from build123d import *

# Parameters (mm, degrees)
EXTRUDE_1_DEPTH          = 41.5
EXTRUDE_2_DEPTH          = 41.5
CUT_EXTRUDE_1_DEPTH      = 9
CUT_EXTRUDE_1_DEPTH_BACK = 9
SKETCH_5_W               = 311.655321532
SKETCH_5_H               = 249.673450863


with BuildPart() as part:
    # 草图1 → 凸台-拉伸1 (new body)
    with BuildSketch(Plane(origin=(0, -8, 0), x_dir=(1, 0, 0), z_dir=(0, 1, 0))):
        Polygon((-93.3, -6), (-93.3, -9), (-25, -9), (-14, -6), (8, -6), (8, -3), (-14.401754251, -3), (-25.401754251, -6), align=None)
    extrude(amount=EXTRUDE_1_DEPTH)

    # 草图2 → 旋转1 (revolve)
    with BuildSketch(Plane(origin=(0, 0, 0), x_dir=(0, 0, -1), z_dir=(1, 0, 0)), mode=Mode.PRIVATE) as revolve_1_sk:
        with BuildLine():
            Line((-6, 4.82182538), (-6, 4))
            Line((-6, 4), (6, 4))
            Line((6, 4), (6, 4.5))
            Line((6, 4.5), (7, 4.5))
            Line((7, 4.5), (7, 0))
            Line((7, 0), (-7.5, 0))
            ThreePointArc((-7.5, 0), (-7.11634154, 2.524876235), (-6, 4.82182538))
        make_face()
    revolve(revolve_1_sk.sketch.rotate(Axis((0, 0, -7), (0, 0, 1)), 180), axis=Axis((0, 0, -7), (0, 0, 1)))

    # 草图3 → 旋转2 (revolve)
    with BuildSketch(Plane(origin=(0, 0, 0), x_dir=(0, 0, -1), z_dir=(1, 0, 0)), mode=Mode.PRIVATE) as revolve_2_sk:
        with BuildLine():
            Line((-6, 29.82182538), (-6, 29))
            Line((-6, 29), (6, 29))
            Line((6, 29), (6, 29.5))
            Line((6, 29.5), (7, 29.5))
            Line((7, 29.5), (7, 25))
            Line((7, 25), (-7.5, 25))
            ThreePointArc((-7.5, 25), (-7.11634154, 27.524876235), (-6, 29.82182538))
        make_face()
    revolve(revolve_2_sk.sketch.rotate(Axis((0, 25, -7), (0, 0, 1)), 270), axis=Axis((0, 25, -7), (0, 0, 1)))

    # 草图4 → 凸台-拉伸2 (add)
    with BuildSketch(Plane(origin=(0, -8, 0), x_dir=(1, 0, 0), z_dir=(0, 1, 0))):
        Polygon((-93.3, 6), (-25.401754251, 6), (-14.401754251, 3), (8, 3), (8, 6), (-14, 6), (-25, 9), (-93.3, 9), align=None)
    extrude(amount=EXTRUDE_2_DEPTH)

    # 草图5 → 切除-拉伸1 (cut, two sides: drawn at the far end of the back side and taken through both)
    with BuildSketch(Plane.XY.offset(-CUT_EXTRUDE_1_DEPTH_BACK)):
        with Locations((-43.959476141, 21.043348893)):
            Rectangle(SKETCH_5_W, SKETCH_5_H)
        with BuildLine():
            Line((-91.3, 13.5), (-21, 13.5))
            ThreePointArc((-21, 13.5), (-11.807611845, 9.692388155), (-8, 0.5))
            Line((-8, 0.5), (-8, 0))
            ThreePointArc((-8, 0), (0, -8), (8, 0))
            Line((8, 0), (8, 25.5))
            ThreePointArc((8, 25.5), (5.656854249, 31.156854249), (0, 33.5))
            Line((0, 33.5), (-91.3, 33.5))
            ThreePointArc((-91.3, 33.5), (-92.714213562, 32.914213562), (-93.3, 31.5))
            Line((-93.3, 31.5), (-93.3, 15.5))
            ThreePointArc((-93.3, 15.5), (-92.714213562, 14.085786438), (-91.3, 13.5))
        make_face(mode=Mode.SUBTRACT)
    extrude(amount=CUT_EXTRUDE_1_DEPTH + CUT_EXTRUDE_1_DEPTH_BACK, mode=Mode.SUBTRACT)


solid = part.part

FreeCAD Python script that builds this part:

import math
import FreeCAD as App
import Part
import Sketcher
Q = App.Units.Quantity

doc = App.newDocument("Part")
body = doc.addObject("PartDesign::Body", "Body")

# Sketch on XZ plane
sketch1 = body.newObject("Sketcher::SketchObject", "Sketch")
sketch1.AttachmentSupport = (doc.getObject("XZ_Plane"), [""])
sketch1.MapMode = "FlatFace"
sketch1.AttachmentOffset = App.Placement(App.Vector(0, 0, 8), App.Rotation())
sketch1.addGeometry(Part.LineSegment(App.Vector(-93.3, 6, 0), App.Vector(-93.3, 9, 0)), False)
sketch1.addGeometry(Part.LineSegment(App.Vector(-93.3, 9, 0), App.Vector(-25, 9, 0)), False)
sketch1.addGeometry(Part.LineSegment(App.Vector(-25, 9, 0), App.Vector(-14, 6, 0)), False)
sketch1.addGeometry(Part.LineSegment(App.Vector(-14, 6, 0), App.Vector(8, 6, 0)), False)
sketch1.addGeometry(Part.LineSegment(App.Vector(8, 6, 0), App.Vector(8, 3, 0)), False)
sketch1.addGeometry(Part.LineSegment(App.Vector(8, 3, 0), App.Vector(-14.4, 3, 0)), False)
sketch1.addGeometry(Part.LineSegment(App.Vector(-14.4, 3, 0), App.Vector(-25.4, 6, 0)), False)
sketch1.addGeometry(Part.LineSegment(App.Vector(-25.4, 6, 0), App.Vector(-93.3, 6, 0)), False)
sketch1.addConstraint(Sketcher.Constraint("Coincident", 0, 2, 1, 1))
sketch1.addConstraint(Sketcher.Constraint("Coincident", 1, 2, 2, 1))
sketch1.addConstraint(Sketcher.Constraint("Coincident", 2, 2, 3, 1))
sketch1.addConstraint(Sketcher.Constraint("Coincident", 3, 2, 4, 1))
sketch1.addConstraint(Sketcher.Constraint("Coincident", 4, 2, 5, 1))
sketch1.addConstraint(Sketcher.Constraint("Coincident", 5, 2, 6, 1))
sketch1.addConstraint(Sketcher.Constraint("Coincident", 6, 2, 7, 1))
sketch1.addConstraint(Sketcher.Constraint("Coincident", 7, 2, 0, 1))
sketch1.addConstraint(Sketcher.Constraint("Vertical", 0))
sketch1.addConstraint(Sketcher.Constraint("Horizontal", 1))
sketch1.addConstraint(Sketcher.Constraint("Horizontal", 3))
sketch1.addConstraint(Sketcher.Constraint("Vertical", 4))
sketch1.addConstraint(Sketcher.Constraint("Horizontal", 5))
sketch1.addConstraint(Sketcher.Constraint("Horizontal", 7))
sketch1.addConstraint(Sketcher.Constraint("Parallel", 2, 6))
sketch1.addConstraint(Sketcher.Constraint("Horizontal", 3, 2, 6, 2))
sketch1.addConstraint(Sketcher.Constraint("Equal", 0, 4))
sketch1.addConstraint(Sketcher.Constraint("DistanceX", 3, 1, 3, 2, Q("22 mm")))
sketch1.addConstraint(Sketcher.Constraint("DistanceY", 0, 1, 0, 2, Q("3 mm")))
sketch1.addConstraint(Sketcher.Constraint("DistanceX", 1, 1, 1, 2, Q("68.3 mm")))
sketch1.addConstraint(Sketcher.Constraint("DistanceY", -1, 1, 0, 2, Q("9 mm")))
sketch1.addConstraint(Sketcher.Constraint("DistanceX", 1, 2, -1, 1, Q("25 mm")))
sketch1.addConstraint(Sketcher.Constraint("DistanceX", 2, 2, -1, 1, Q("14 mm")))
sketch1.addConstraint(Sketcher.Constraint("DistanceX", 5, 2, 5, 1, Q("22.401754 mm")))
pad1 = body.newObject("PartDesign::Pad", "Pad")
pad1.Profile = sketch1
pad1.Length = 41.5
pad1.Reversed = True

# Sketch on YZ plane
sketch2 = body.newObject("Sketcher::SketchObject", "Sketch001")
sketch2.AttachmentSupport = (doc.getObject("YZ_Plane"), [""])
sketch2.MapMode = "FlatFace"
sketch2.addGeometry(Part.LineSegment(App.Vector(4, 6, 0), App.Vector(4.8, 6, 0)), False)
sketch2.addGeometry(Part.ArcOfCircle(Part.Circle(App.Vector(0, -1, 0), App.Vector(0, 0, 1), 8.5), math.radians(55), math.radians(90)), False)
sketch2.addGeometry(Part.LineSegment(App.Vector(0, 7.5, 0), App.Vector(0, -7, 0)), False)
sketch2.addGeometry(Part.LineSegment(App.Vector(0, -7, 0), App.Vector(4.5, -7, 0)), False)
sketch2.addGeometry(Part.LineSegment(App.Vector(4.5, -7, 0), App.Vector(4.5, -6, 0)), False)
sketch2.addGeometry(Part.LineSegment(App.Vector(4.5, -6, 0), App.Vector(4, -6, 0)), False)
sketch2.addGeometry(Part.LineSegment(App.Vector(4, -6, 0), App.Vector(4, 6, 0)), False)
sketch2.addConstraint(Sketcher.Constraint("Coincident", 0, 2, 1, 1))
sketch2.addConstraint(Sketcher.Constraint("Coincident", 1, 2, 2, 1))
sketch2.addConstraint(Sketcher.Constraint("Coincident", 2, 2, 3, 1))
sketch2.addConstraint(Sketcher.Constraint("Coincident", 3, 2, 4, 1))
sketch2.addConstraint(Sketcher.Constraint("Coincident", 4, 2, 5, 1))
sketch2.addConstraint(Sketcher.Constraint("Coincident", 5, 2, 6, 1))
sketch2.addConstraint(Sketcher.Constraint("Coincident", 6, 2, 0, 1))
sketch2.addConstraint(Sketcher.Constraint("Horizontal", 0))
sketch2.addConstraint(Sketcher.Constraint("Vertical", 2))
sketch2.addConstraint(Sketcher.Constraint("Horizontal", 3))
sketch2.addConstraint(Sketcher.Constraint("Vertical", 4))
sketch2.addConstraint(Sketcher.Constraint("Horizontal", 5))
sketch2.addConstraint(Sketcher.Constraint("Vertical", 6))
sketch2.addConstraint(Sketcher.Constraint("PointOnObject", 1, 3, -2))
sketch2.addConstraint(Sketcher.Constraint("PointOnObject", 1, 2, -2))
sketch2.addConstraint(Sketcher.Constraint("Radius", 1, Q("8.5 mm")))
sketch2.addConstraint(Sketcher.Constraint("DistanceY", 4, 1, 4, 2, Q("1 mm")))
sketch2.addConstraint(Sketcher.Constraint("DistanceY", 6, 1, 6, 2, Q("12 mm")))
sketch2.addConstraint(Sketcher.Constraint("DistanceX", 3, 1, 3, 2, Q("4.5 mm")))
sketch2.addConstraint(Sketcher.Constraint("DistanceX", 5, 2, 5, 1, Q("0.5 mm")))
sketch2.addConstraint(Sketcher.Constraint("DistanceY", 2, 2, 2, 1, Q("14.5 mm")))
sketch2.addConstraint(Sketcher.Constraint("DistanceY", 1, 3, -1, 1, Q("1 mm")))
revolution = body.newObject("PartDesign::Revolution", "Revolution")
revolution.Profile = sketch2
revolution.ReferenceAxis = (sketch2, ["V_Axis"])
revolution.Angle = 360

# Sketch on YZ plane
sketch3 = body.newObject("Sketcher::SketchObject", "Sketch002")
sketch3.AttachmentSupport = (doc.getObject("YZ_Plane"), [""])
sketch3.MapMode = "FlatFace"
sketch3.addGeometry(Part.LineSegment(App.Vector(29, 6, 0), App.Vector(29.8, 6, 0)), False)
sketch3.addGeometry(Part.ArcOfCircle(Part.Circle(App.Vector(25, -1, 0), App.Vector(0, 0, 1), 8.5), math.radians(55), math.radians(90)), False)
sketch3.addGeometry(Part.LineSegment(App.Vector(25, 7.5, 0), App.Vector(25, -7, 0)), False)
sketch3.addGeometry(Part.LineSegment(App.Vector(25, -7, 0), App.Vector(29.5, -7, 0)), False)
sketch3.addGeometry(Part.LineSegment(App.Vector(29.5, -7, 0), App.Vector(29.5, -6, 0)), False)
sketch3.addGeometry(Part.LineSegment(App.Vector(29.5, -6, 0), App.Vector(29, -6, 0)), False)
sketch3.addGeometry(Part.LineSegment(App.Vector(29, -6, 0), App.Vector(29, 6, 0)), False)
sketch3.addGeometry(Part.LineSegment(App.Vector(25, -7, 0), App.Vector(25, 7.5, 0)), True)  # axis
sketch3.addConstraint(Sketcher.Constraint("Coincident", 0, 2, 1, 1))
sketch3.addConstraint(Sketcher.Constraint("Coincident", 1, 2, 2, 1))
sketch3.addConstraint(Sketcher.Constraint("Coincident", 2, 2, 3, 1))
sketch3.addConstraint(Sketcher.Constraint("Coincident", 3, 2, 4, 1))
sketch3.addConstraint(Sketcher.Constraint("Coincident", 4, 2, 5, 1))
sketch3.addConstraint(Sketcher.Constraint("Coincident", 5, 2, 6, 1))
sketch3.addConstraint(Sketcher.Constraint("Coincident", 6, 2, 0, 1))
sketch3.addConstraint(Sketcher.Constraint("Horizontal", 0))
sketch3.addConstraint(Sketcher.Constraint("Vertical", 2))
sketch3.addConstraint(Sketcher.Constraint("Horizontal", 3))
sketch3.addConstraint(Sketcher.Constraint("Vertical", 4))
sketch3.addConstraint(Sketcher.Constraint("Horizontal", 5))
sketch3.addConstraint(Sketcher.Constraint("Vertical", 6))
sketch3.addConstraint(Sketcher.Constraint("Vertical", 7))
sketch3.addConstraint(Sketcher.Constraint("Coincident", 7, 1, 2, 2))
sketch3.addConstraint(Sketcher.Constraint("Equal", 2, 7))
sketch3.addConstraint(Sketcher.Constraint("Radius", 1, Q("8.5 mm")))
sketch3.addConstraint(Sketcher.Constraint("DistanceY", 4, 1, 4, 2, Q("1 mm")))
sketch3.addConstraint(Sketcher.Constraint("DistanceY", 6, 1, 6, 2, Q("12 mm")))
sketch3.addConstraint(Sketcher.Constraint("DistanceX", 3, 1, 3, 2, Q("4.5 mm")))
sketch3.addConstraint(Sketcher.Constraint("DistanceX", 5, 2, 5, 1, Q("0.5 mm")))
sketch3.addConstraint(Sketcher.Constraint("DistanceY", 2, 2, 2, 1, Q("14.5 mm")))
sketch3.addConstraint(Sketcher.Constraint("DistanceX", -1, 1, 1, 3, Q("25 mm")))
sketch3.addConstraint(Sketcher.Constraint("DistanceY", 1, 3, -1, 1, Q("1 mm")))
sketch3.addConstraint(Sketcher.Constraint("DistanceX", -1, 1, 1, 2, Q("25 mm")))
revolution2 = body.newObject("PartDesign::Revolution", "Revolution001")
revolution2.Profile = sketch3
revolution2.ReferenceAxis = (sketch3, ["Axis0"])
revolution2.Angle = 360

# Sketch on XZ plane
sketch4 = body.newObject("Sketcher::SketchObject", "Sketch003")
sketch4.AttachmentSupport = (doc.getObject("XZ_Plane"), [""])
sketch4.MapMode = "FlatFace"
sketch4.AttachmentOffset = App.Placement(App.Vector(0, 0, 8), App.Rotation())
sketch4.addGeometry(Part.LineSegment(App.Vector(-93.3, -6, 0), App.Vector(-25.4, -6, 0)), False)
sketch4.addGeometry(Part.LineSegment(App.Vector(-25.4, -6, 0), App.Vector(-14.4, -3, 0)), False)
sketch4.addGeometry(Part.LineSegment(App.Vector(-14.4, -3, 0), App.Vector(8, -3, 0)), False)
sketch4.addGeometry(Part.LineSegment(App.Vector(8, -3, 0), App.Vector(8, -6, 0)), False)
sketch4.addGeometry(Part.LineSegment(App.Vector(8, -6, 0), App.Vector(-14, -6, 0)), False)
sketch4.addGeometry(Part.LineSegment(App.Vector(-14, -6, 0), App.Vector(-25, -9, 0)), False)
sketch4.addGeometry(Part.LineSegment(App.Vector(-25, -9, 0), App.Vector(-93.3, -9, 0)), False)
sketch4.addGeometry(Part.LineSegment(App.Vector(-93.3, -9, 0), App.Vector(-93.3, -6, 0)), False)
sketch4.addConstraint(Sketcher.Constraint("Coincident", 0, 2, 1, 1))
sketch4.addConstraint(Sketcher.Constraint("Coincident", 1, 2, 2, 1))
sketch4.addConstraint(Sketcher.Constraint("Coincident", 2, 2, 3, 1))
sketch4.addConstraint(Sketcher.Constraint("Coincident", 3, 2, 4, 1))
sketch4.addConstraint(Sketcher.Constraint("Coincident", 4, 2, 5, 1))
sketch4.addConstraint(Sketcher.Constraint("Coincident", 5, 2, 6, 1))
sketch4.addConstraint(Sketcher.Constraint("Coincident", 6, 2, 7, 1))
sketch4.addConstraint(Sketcher.Constraint("Coincident", 7, 2, 0, 1))
sketch4.addConstraint(Sketcher.Constraint("Horizontal", 0))
sketch4.addConstraint(Sketcher.Constraint("Horizontal", 2))
sketch4.addConstraint(Sketcher.Constraint("Vertical", 3))
sketch4.addConstraint(Sketcher.Constraint("Horizontal", 4))
sketch4.addConstraint(Sketcher.Constraint("Horizontal", 6))
sketch4.addConstraint(Sketcher.Constraint("Vertical", 7))
sketch4.addConstraint(Sketcher.Constraint("Parallel", 1, 5))
sketch4.addConstraint(Sketcher.Constraint("Horizontal", 0, 2, 3, 2))
sketch4.addConstraint(Sketcher.Constraint("Equal", 3, 7))
sketch4.addConstraint(Sketcher.Constraint("DistanceX", 4, 2, 4, 1, Q("22 mm")))
sketch4.addConstraint(Sketcher.Constraint("DistanceY", 3, 2, 3, 1, Q("3 mm")))
sketch4.addConstraint(Sketcher.Constraint("DistanceX", 6, 2, 6, 1, Q("68.3 mm")))
sketch4.addConstraint(Sketcher.Constraint("DistanceY", 0, 2, -1, 1, Q("6 mm")))
sketch4.addConstraint(Sketcher.Constraint("DistanceX", -1, 1, 2, 2, Q("8 mm")))
sketch4.addConstraint(Sketcher.Constraint("DistanceX", 5, 2, -1, 1, Q("25 mm")))
sketch4.addConstraint(Sketcher.Constraint("DistanceX", 0, 1, 0, 2, Q("67.898246 mm")))
pad2 = body.newObject("PartDesign::Pad", "Pad001")
pad2.Profile = sketch4
pad2.Length = 41.5
pad2.Reversed = True

# Sketch on XY plane
sketch5 = body.newObject("Sketcher::SketchObject", "Sketch004")
sketch5.AttachmentSupport = (doc.getObject("XY_Plane"), [""])
sketch5.MapMode = "FlatFace"
sketch5.addGeometry(Part.LineSegment(App.Vector(-199.8, 145.9, 0), App.Vector(-199.8, -103.8, 0)), False)
sketch5.addGeometry(Part.LineSegment(App.Vector(-199.8, -103.8, 0), App.Vector(111.9, -103.8, 0)), False)
sketch5.addGeometry(Part.LineSegment(App.Vector(111.9, -103.8, 0), App.Vector(111.9, 145.9, 0)), False)
sketch5.addGeometry(Part.LineSegment(App.Vector(111.9, 145.9, 0), App.Vector(-199.8, 145.9, 0)), False)
sketch5.addGeometry(Part.LineSegment(App.Vector(-21, 13.5, 0), App.Vector(-91.3, 13.5, 0)), False)
sketch5.addGeometry(Part.ArcOfCircle(Part.Circle(App.Vector(-91.3, 15.5, 0), App.Vector(0, 0, 1), 2), math.radians(-180), math.radians(-90)), False)
sketch5.addGeometry(Part.LineSegment(App.Vector(-93.3, 15.5, 0), App.Vector(-93.3, 31.5, 0)), False)
sketch5.addGeometry(Part.ArcOfCircle(Part.Circle(App.Vector(-91.3, 31.5, 0), App.Vector(0, 0, 1), 2), math.radians(90), math.radians(180)), False)
sketch5.addGeometry(Part.LineSegment(App.Vector(-91.3, 33.5, 0), App.Vector(0, 33.5, 0)), False)
sketch5.addGeometry(Part.ArcOfCircle(Part.Circle(App.Vector(0, 25.5, 0), App.Vector(0, 0, 1), 8), math.radians(0), math.radians(90)), False)
sketch5.addGeometry(Part.LineSegment(App.Vector(8, 25.5, 0), App.Vector(8, 0, 0)), False)
sketch5.addGeometry(Part.ArcOfCircle(Part.Circle(App.Vector(0, 0, 0), App.Vector(0, 0, 1), 8), math.radians(180), math.radians(360)), False)
sketch5.addGeometry(Part.LineSegment(App.Vector(-8, 0, 0), App.Vector(-8, 0.5, 0)), False)
sketch5.addGeometry(Part.ArcOfCircle(Part.Circle(App.Vector(-21, 0.5, 0), App.Vector(0, 0, 1), 13), math.radians(0), math.radians(90)), False)
sketch5.addConstraint(Sketcher.Constraint("Coincident", 0, 2, 1, 1))
sketch5.addConstraint(Sketcher.Constraint("Coincident", 1, 2, 2, 1))
sketch5.addConstraint(Sketcher.Constraint("Coincident", 2, 2, 3, 1))
sketch5.addConstraint(Sketcher.Constraint("Coincident", 3, 2, 0, 1))
sketch5.addConstraint(Sketcher.Constraint("Tangent", 4, 2, 5, 2))
sketch5.addConstraint(Sketcher.Constraint("Tangent", 5, 1, 6, 1))
sketch5.addConstraint(Sketcher.Constraint("Tangent", 6, 2, 7, 2))
sketch5.addConstraint(Sketcher.Constraint("Tangent", 7, 1, 8, 1))
sketch5.addConstraint(Sketcher.Constraint("Tangent", 8, 2, 9, 2))
sketch5.addConstraint(Sketcher.Constraint("Tangent", 9, 1, 10, 1))
sketch5.addConstraint(Sketcher.Constraint("Tangent", 10, 2, 11, 2))
sketch5.addConstraint(Sketcher.Constraint("Tangent", 11, 1, 12, 1))
sketch5.addConstraint(Sketcher.Constraint("Tangent", 12, 2, 13, 1))
sketch5.addConstraint(Sketcher.Constraint("Tangent", 13, 2, 4, 1))
sketch5.addConstraint(Sketcher.Constraint("Vertical", 0))
sketch5.addConstraint(Sketcher.Constraint("Horizontal", 1))
sketch5.addConstraint(Sketcher.Constraint("Vertical", 2))
sketch5.addConstraint(Sketcher.Constraint("Horizontal", 3))
sketch5.addConstraint(Sketcher.Constraint("Horizontal", 4))
sketch5.addConstraint(Sketcher.Constraint("Vertical", 6))
sketch5.addConstraint(Sketcher.Constraint("Horizontal", 8))
sketch5.addConstraint(Sketcher.Constraint("Vertical", 10))
sketch5.addConstraint(Sketcher.Constraint("Vertical", 12))
sketch5.addConstraint(Sketcher.Constraint("Coincident", 11, 3, -1, 1))
sketch5.addConstraint(Sketcher.Constraint("Equal", 5, 7))
sketch5.addConstraint(Sketcher.Constraint("Equal", 9, 11))
sketch5.addConstraint(Sketcher.Constraint("Radius", 5, Q("2 mm")))
sketch5.addConstraint(Sketcher.Constraint("Radius", 9, Q("8 mm")))
sketch5.addConstraint(Sketcher.Constraint("Radius", 13, Q("13 mm")))
sketch5.addConstraint(Sketcher.Constraint("DistanceY", 6, 1, 6, 2, Q("16 mm")))
sketch5.addConstraint(Sketcher.Constraint("DistanceX", 4, 2, 4, 1, Q("70.3 mm")))
sketch5.addConstraint(Sketcher.Constraint("DistanceY", 10, 2, 10, 1, Q("25.5 mm")))
sketch5.addConstraint(Sketcher.Constraint("DistanceX", 1, 1, 1, 2, Q("311.655322 mm")))
sketch5.addConstraint(Sketcher.Constraint("DistanceY", 0, 2, 0, 1, Q("249.673451 mm")))
sketch5.addConstraint(Sketcher.Constraint("DistanceX", 0, 2, -1, 1, Q("199.787137 mm")))
sketch5.addConstraint(Sketcher.Constraint("DistanceY", 0, 2, -1, 1, Q("103.793377 mm")))
pocket1 = body.newObject("PartDesign::Pocket", "Pocket")
pocket1.Profile = sketch5
pocket1.Type = "ThroughAll"
pocket1.Midplane = True

doc.recompute()
